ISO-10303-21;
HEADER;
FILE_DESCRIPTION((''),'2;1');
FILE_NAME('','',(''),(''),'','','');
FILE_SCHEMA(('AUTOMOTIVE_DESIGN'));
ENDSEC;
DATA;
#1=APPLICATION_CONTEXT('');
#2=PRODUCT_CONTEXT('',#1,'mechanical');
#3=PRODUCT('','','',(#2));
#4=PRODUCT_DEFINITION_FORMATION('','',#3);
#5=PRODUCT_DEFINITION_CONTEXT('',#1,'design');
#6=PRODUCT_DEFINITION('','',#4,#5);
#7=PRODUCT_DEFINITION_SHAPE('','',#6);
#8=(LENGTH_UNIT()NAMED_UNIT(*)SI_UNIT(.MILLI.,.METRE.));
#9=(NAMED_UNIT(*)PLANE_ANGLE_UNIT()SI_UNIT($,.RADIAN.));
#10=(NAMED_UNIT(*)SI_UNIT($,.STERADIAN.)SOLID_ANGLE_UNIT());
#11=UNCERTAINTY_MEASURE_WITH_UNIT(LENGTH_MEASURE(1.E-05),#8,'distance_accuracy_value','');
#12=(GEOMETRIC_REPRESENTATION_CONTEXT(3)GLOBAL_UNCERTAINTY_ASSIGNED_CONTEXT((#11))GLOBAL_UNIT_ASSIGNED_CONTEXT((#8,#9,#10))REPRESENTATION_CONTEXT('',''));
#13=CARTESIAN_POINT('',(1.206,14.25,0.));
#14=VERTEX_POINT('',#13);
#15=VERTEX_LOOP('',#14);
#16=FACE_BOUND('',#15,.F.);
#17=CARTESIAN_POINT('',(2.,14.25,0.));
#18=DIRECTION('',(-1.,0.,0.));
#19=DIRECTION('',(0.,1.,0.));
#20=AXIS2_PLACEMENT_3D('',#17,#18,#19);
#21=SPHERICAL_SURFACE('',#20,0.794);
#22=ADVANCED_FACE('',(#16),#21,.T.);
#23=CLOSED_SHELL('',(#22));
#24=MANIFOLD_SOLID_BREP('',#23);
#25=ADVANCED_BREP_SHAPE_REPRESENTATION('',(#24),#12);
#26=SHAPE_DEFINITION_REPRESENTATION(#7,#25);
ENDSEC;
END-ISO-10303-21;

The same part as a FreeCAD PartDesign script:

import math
import FreeCAD as App
import Part
import Sketcher

V = App.Vector

doc = App.newDocument("Part")
body = doc.addObject("PartDesign::Body", "Body")

sketch1 = body.newObject("Sketcher::SketchObject", "Sketch")
sketch1.AttachmentSupport = (doc.getObject("XY_Plane"), [""])
sketch1.MapMode = "FlatFace"
sketch1.addGeometry([
    Part.LineSegment(V(1.2, 14.2, 0), V(2.8, 14.2, 0)),
    Part.ArcOfCircle(Part.Circle(V(2, 14.2, 0), V(0, 0, 1), 0.8), math.radians(0), math.radians(180)),
], False)
sketch1.addGeometry(Part.LineSegment(V(1.2, 14.2, 0), V(2.8, 14.2, 0)), True)
sketch1.addConstraint([
    Sketcher.Constraint("Coincident", 0, 1, 1, 2),
    Sketcher.Constraint("Coincident", 1, 1, 0, 2),
    Sketcher.Constraint("Horizontal", 0),
    Sketcher.Constraint("Horizontal", 2),
    Sketcher.Constraint("Coincident", 2, 1, 0, 1),
    Sketcher.Constraint("Horizontal", 1, 3, 0, 1),
    Sketcher.Constraint("Equal", 0, 2),
    Sketcher.Constraint("DistanceX", -1, 1, 1, 3, 2.0),
    Sketcher.Constraint("Radius", 1, 0.794),
    Sketcher.Constraint("DistanceY", -1, 1, 1, 3, 14.25),
])
revolution = body.newObject("PartDesign::Revolution", "Revolution")
revolution.Profile = sketch1
revolution.ReferenceAxis = (sketch1, ["Axis0"])
revolution.Angle = 360

doc.recompute()
